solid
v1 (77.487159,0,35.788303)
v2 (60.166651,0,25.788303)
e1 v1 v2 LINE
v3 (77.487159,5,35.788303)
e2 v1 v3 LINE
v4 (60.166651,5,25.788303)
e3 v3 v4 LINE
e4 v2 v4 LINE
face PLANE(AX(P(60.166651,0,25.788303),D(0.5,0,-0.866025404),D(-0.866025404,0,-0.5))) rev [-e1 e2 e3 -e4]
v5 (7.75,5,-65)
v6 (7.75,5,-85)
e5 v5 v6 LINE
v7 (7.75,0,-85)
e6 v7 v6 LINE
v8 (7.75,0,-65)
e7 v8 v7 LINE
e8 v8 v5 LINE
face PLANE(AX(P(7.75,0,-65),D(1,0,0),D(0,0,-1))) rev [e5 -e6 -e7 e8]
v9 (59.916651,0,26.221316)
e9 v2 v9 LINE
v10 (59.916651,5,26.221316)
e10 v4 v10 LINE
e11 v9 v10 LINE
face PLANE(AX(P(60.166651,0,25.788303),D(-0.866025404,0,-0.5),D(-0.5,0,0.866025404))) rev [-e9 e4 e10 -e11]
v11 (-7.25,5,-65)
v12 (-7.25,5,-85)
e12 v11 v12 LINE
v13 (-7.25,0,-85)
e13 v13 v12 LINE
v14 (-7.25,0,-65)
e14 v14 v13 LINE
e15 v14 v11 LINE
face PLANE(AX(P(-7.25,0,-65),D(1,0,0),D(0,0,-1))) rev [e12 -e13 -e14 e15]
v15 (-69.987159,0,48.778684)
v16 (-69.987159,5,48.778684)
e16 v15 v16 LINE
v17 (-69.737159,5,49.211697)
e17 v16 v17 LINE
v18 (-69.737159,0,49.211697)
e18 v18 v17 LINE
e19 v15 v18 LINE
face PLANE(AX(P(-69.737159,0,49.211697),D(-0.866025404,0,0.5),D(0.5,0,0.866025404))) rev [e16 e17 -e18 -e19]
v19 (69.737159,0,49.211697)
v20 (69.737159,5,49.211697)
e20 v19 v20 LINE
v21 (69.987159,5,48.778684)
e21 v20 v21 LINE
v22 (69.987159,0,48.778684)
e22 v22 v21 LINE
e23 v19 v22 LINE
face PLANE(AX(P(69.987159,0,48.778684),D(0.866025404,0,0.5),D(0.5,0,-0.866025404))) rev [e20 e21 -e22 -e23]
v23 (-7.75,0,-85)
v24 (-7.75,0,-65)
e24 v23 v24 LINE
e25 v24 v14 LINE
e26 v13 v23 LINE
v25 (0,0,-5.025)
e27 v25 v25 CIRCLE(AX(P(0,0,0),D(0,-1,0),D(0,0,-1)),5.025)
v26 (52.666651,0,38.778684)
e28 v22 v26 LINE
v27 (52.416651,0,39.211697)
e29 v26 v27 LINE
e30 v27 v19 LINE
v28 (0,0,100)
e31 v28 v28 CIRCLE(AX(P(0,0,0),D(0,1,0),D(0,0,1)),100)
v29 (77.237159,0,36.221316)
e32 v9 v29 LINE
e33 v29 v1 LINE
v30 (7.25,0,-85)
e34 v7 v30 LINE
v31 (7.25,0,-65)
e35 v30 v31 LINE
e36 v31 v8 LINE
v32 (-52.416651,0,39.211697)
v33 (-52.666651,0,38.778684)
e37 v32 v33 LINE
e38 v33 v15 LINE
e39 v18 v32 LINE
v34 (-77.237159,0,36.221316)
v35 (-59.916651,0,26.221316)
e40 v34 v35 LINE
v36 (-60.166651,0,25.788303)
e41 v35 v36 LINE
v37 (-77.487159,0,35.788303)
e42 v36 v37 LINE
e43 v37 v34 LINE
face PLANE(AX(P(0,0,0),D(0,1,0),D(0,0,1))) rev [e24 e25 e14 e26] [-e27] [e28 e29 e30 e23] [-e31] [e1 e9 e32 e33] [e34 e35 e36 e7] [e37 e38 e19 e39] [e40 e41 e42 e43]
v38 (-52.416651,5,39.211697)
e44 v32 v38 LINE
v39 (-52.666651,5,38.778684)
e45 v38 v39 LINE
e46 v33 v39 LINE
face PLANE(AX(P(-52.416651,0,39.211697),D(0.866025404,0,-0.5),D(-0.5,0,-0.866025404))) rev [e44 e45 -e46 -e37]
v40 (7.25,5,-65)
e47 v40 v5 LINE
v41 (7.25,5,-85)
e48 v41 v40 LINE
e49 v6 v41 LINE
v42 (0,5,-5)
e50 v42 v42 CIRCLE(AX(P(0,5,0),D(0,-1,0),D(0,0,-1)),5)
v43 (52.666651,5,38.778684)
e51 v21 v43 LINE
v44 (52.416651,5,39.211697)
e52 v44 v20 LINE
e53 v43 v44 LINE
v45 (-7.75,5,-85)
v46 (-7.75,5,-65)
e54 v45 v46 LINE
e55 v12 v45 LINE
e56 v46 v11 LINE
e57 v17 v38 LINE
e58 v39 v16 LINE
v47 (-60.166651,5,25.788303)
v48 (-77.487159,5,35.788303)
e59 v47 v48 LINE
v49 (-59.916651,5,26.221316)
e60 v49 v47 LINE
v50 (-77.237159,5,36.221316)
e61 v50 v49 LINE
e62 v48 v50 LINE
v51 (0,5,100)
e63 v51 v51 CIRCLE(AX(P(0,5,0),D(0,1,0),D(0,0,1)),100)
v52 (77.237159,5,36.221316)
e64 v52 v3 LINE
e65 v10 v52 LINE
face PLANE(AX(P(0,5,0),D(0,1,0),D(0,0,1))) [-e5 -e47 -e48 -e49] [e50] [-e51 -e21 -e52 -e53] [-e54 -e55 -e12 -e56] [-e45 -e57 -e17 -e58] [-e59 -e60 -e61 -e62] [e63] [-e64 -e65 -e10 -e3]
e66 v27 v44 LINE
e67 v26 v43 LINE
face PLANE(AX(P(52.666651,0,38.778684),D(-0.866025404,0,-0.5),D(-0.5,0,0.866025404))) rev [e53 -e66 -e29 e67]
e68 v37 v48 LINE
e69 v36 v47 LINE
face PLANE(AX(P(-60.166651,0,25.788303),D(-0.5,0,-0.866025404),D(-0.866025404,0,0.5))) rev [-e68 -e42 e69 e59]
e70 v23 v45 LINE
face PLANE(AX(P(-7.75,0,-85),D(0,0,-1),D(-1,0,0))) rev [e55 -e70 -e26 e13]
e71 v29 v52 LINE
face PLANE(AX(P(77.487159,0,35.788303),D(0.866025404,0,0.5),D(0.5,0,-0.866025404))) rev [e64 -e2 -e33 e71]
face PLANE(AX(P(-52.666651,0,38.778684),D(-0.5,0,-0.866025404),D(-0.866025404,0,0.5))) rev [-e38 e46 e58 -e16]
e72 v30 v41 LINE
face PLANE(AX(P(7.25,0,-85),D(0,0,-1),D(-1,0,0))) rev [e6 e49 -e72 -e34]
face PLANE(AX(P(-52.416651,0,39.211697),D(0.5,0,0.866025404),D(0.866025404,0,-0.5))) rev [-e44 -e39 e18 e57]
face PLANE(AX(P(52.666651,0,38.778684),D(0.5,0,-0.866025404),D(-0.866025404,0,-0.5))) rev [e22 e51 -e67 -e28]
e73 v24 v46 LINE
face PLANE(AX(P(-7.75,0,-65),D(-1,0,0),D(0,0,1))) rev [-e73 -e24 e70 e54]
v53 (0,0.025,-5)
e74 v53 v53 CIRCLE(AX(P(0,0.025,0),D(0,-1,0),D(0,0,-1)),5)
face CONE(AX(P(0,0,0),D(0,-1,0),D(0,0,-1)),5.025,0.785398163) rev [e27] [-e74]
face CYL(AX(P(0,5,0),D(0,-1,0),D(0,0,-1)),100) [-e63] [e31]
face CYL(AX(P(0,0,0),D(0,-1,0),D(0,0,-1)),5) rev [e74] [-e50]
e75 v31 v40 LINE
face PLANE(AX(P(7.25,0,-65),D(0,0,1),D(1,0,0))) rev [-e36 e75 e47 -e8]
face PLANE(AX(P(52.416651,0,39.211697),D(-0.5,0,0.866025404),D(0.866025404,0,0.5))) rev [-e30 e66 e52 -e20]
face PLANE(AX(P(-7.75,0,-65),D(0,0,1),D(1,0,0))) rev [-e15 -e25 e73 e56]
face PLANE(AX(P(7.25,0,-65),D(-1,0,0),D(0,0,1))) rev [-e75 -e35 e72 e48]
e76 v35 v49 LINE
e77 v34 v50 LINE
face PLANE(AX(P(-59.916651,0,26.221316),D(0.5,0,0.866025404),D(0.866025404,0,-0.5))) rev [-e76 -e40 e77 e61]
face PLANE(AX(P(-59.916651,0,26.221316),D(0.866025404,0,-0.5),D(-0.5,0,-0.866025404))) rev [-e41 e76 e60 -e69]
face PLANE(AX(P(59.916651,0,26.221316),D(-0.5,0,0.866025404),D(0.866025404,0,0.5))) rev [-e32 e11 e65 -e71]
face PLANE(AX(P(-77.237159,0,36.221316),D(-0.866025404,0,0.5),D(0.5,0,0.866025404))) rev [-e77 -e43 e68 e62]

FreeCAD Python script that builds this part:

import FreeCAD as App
import Part
import Sketcher
from FreeCAD import Vector
Q = App.Units.Quantity

doc = App.newDocument("Part")
body = doc.addObject("PartDesign::Body", "Body")

# Sketch on XZ plane
sketch1 = body.newObject("Sketcher::SketchObject", "Sketch")
sketch1.AttachmentSupport = (doc.getObject("XZ_Plane"), [""])
sketch1.MapMode = "FlatFace"
sketch1.addGeometry(Part.Circle(Vector(0, 0, 0), Vector(0, 0, 1), 100), False)
sketch1.addConstraint(Sketcher.Constraint("Coincident", 0, 3, -1, 1))
sketch1.addConstraint(Sketcher.Constraint("Diameter", 0, Q("200 mm")))
pad1 = body.newObject("PartDesign::Pad", "Pad")
pad1.Profile = sketch1
pad1.Length = 5
pad1.Reversed = True

# Sketch on XZ plane
sketch2 = body.newObject("Sketcher::SketchObject", "Sketch001")
sketch2.AttachmentSupport = (doc.getObject("XZ_Plane"), [""])
sketch2.MapMode = "FlatFace"
sketch2.AttachmentOffset = App.Placement(Vector(0, 0, -5), App.Rotation())
sketch2.addGeometry(Part.LineSegment(Vector(-7.8, -85, 0), Vector(-7.8, -65, 0)), False)
sketch2.addGeometry(Part.LineSegment(Vector(-7.8, -65, 0), Vector(-7.2, -65, 0)), False)
sketch2.addGeometry(Part.LineSegment(Vector(-7.2, -65, 0), Vector(-7.2, -85, 0)), False)
sketch2.addGeometry(Part.LineSegment(Vector(-7.2, -85, 0), Vector(-7.8, -85, 0)), False)
sketch2.addGeometry(Part.LineSegment(Vector(7.2, -85, 0), Vector(7.2, -65, 0)), False)
sketch2.addGeometry(Part.LineSegment(Vector(7.2, -65, 0), Vector(7.8, -65, 0)), False)
sketch2.addGeometry(Part.LineSegment(Vector(7.8, -65, 0), Vector(7.8, -85, 0)), False)
sketch2.addGeometry(Part.LineSegment(Vector(7.8, -85, 0), Vector(7.2, -85, 0)), False)
sketch2.addGeometry(Part.LineSegment(Vector(77.5, 35.8, 0), Vector(60.2, 25.8, 0)), False)
sketch2.addGeometry(Part.LineSegment(Vector(60.2, 25.8, 0), Vector(59.9, 26.2, 0)), False)
sketch2.addGeometry(Part.LineSegment(Vector(59.9, 26.2, 0), Vector(77.2, 36.2, 0)), False)
sketch2.addGeometry(Part.LineSegment(Vector(77.2, 36.2, 0), Vector(77.5, 35.8, 0)), False)
sketch2.addGeometry(Part.LineSegment(Vector(70, 48.8, 0), Vector(52.7, 38.8, 0)), False)
sketch2.addGeometry(Part.LineSegment(Vector(52.7, 38.8, 0), Vector(52.4, 39.2, 0)), False)
sketch2.addGeometry(Part.LineSegment(Vector(52.4, 39.2, 0), Vector(69.7, 49.2, 0)), False)
sketch2.addGeometry(Part.LineSegment(Vector(69.7, 49.2, 0), Vector(70, 48.8, 0)), False)
sketch2.addGeometry(Part.LineSegment(Vector(-69.7, 49.2, 0), Vector(-52.4, 39.2, 0)), False)
sketch2.addGeometry(Part.LineSegment(Vector(-52.4, 39.2, 0), Vector(-52.7, 38.8, 0)), False)
sketch2.addGeometry(Part.LineSegment(Vector(-52.7, 38.8, 0), Vector(-70, 48.8, 0)), False)
sketch2.addGeometry(Part.LineSegment(Vector(-70, 48.8, 0), Vector(-69.7, 49.2, 0)), False)
sketch2.addGeometry(Part.LineSegment(Vector(-77.2, 36.2, 0), Vector(-59.9, 26.2, 0)), False)
sketch2.addGeometry(Part.LineSegment(Vector(-59.9, 26.2, 0), Vector(-60.2, 25.8, 0)), False)
sketch2.addGeometry(Part.LineSegment(Vector(-60.2, 25.8, 0), Vector(-77.5, 35.8, 0)), False)
sketch2.addGeometry(Part.LineSegment(Vector(-77.5, 35.8, 0), Vector(-77.2, 36.2, 0)), False)
sketch2.addConstraint(Sketcher.Constraint("Coincident", 0, 2, 1, 1))
sketch2.addConstraint(Sketcher.Constraint("Coincident", 1, 2, 2, 1))
sketch2.addConstraint(Sketcher.Constraint("Coincident", 2, 2, 3, 1))
sketch2.addConstraint(Sketcher.Constraint("Coincident", 3, 2, 0, 1))
sketch2.addConstraint(Sketcher.Constraint("Coincident", 4, 2, 5, 1))
sketch2.addConstraint(Sketcher.Constraint("Coincident", 5, 2, 6, 1))
sketch2.addConstraint(Sketcher.Constraint("Coincident", 6, 2, 7, 1))
sketch2.addConstraint(Sketcher.Constraint("Coincident", 7, 2, 4, 1))
sketch2.addConstraint(Sketcher.Constraint("Coincident", 8, 2, 9, 1))
sketch2.addConstraint(Sketcher.Constraint("Coincident", 9, 2, 10, 1))
sketch2.addConstraint(Sketcher.Constraint("Coincident", 10, 2, 11, 1))
sketch2.addConstraint(Sketcher.Constraint("Coincident", 11, 2, 8, 1))
sketch2.addConstraint(Sketcher.Constraint("Coincident", 12, 2, 13, 1))
sketch2.addConstraint(Sketcher.Constraint("Coincident", 13, 2, 14, 1))
sketch2.addConstraint(Sketcher.Constraint("Coincident", 14, 2, 15, 1))
sketch2.addConstraint(Sketcher.Constraint("Coincident", 15, 2, 12, 1))
sketch2.addConstraint(Sketcher.Constraint("Coincident", 16, 2, 17, 1))
sketch2.addConstraint(Sketcher.Constraint("Coincident", 17, 2, 18, 1))
sketch2.addConstraint(Sketcher.Constraint("Coincident", 18, 2, 19, 1))
sketch2.addConstraint(Sketcher.Constraint("Coincident", 19, 2, 16, 1))
sketch2.addConstraint(Sketcher.Constraint("Coincident", 20, 2, 21, 1))
sketch2.addConstraint(Sketcher.Constraint("Coincident", 21, 2, 22, 1))
sketch2.addConstraint(Sketcher.Constraint("Coincident", 22, 2, 23, 1))
sketch2.addConstraint(Sketcher.Constraint("Coincident", 23, 2, 20, 1))
sketch2.addConstraint(Sketcher.Constraint("Vertical", 0))
sketch2.addConstraint(Sketcher.Constraint("Horizontal", 1))
sketch2.addConstraint(Sketcher.Constraint("Vertical", 2))
sketch2.addConstraint(Sketcher.Constraint("Horizontal", 3))
sketch2.addConstraint(Sketcher.Constraint("Vertical", 4))
sketch2.addConstraint(Sketcher.Constraint("Horizontal", 5))
sketch2.addConstraint(Sketcher.Constraint("Vertical", 6))
sketch2.addConstraint(Sketcher.Constraint("Horizontal", 7))
sketch2.addConstraint(Sketcher.Constraint("Symmetric", 1, 2, 4, 2, -2))
sketch2.addConstraint(Sketcher.Constraint("Symmetric", 3, 2, 6, 2, -2))
sketch2.addConstraint(Sketcher.Constraint("Symmetric", 13, 2, 16, 2, -2))
sketch2.addConstraint(Sketcher.Constraint("Symmetric", 12, 2, 17, 2, -2))
sketch2.addConstraint(Sketcher.Constraint("Symmetric", 15, 2, 18, 2, -2))
sketch2.addConstraint(Sketcher.Constraint("Symmetric", 14, 2, 19, 2, -2))
sketch2.addConstraint(Sketcher.Constraint("Symmetric", 9, 2, 20, 2, -2))
sketch2.addConstraint(Sketcher.Constraint("Symmetric", 8, 2, 21, 2, -2))
sketch2.addConstraint(Sketcher.Constraint("Symmetric", 11, 2, 22, 2, -2))
sketch2.addConstraint(Sketcher.Constraint("Symmetric", 10, 2, 23, 2, -2))
sketch2.addConstraint(Sketcher.Constraint("Perpendicular", 8, 9))
sketch2.addConstraint(Sketcher.Constraint("Perpendicular", 9, 10))
sketch2.addConstraint(Sketcher.Constraint("Perpendicular", 10, 11))
sketch2.addConstraint(Sketcher.Constraint("Perpendicular", 11, 12))
sketch2.addConstraint(Sketcher.Constraint("Perpendicular", 12, 13))
sketch2.addConstraint(Sketcher.Constraint("Perpendicular", 13, 14))
sketch2.addConstraint(Sketcher.Constraint("Perpendicular", 14, 15))
sketch2.addConstraint(Sketcher.Constraint("Equal", 10, 12))
sketch2.addConstraint(Sketcher.Constraint("Equal", 11, 13))
sketch2.addConstraint(Sketcher.Constraint("DistanceY", 0, 1, 0, 2, Q("20 mm")))
sketch2.addConstraint(Sketcher.Constraint("Angle", 8, Q("-150 deg")))
sketch2.addConstraint(Sketcher.Constraint("Distance", 8, Q("20 mm")))
sketch2.addConstraint(Sketcher.Constraint("DistanceX", 1, 1, 1, 2, Q("0.5 mm")))
sketch2.addConstraint(Sketcher.Constraint("DistanceY", 0, 2, -1, 1, Q("65 mm")))
sketch2.addConstraint(Sketcher.Constraint("DistanceX", 0, 2, 4, 2, Q("15 mm")))
sketch2.addConstraint(Sketcher.Constraint("Distance", 9, Q("0.5 mm")))
sketch2.addConstraint(Sketcher.Constraint("DistanceX", 12, 2, 8, 2, Q("7.5 mm")))
sketch2.addConstraint(Sketcher.Constraint("DistanceX", -1, 1, 8, 2, Q("60.166651 mm")))
sketch2.addConstraint(Sketcher.Constraint("DistanceY", 9, 2, 12, 2, Q("12.557368 mm")))
sketch2.addConstraint(Sketcher.Constraint("DistanceY", -1, 1, 8, 2, Q("25.788303 mm")))
pocket1 = body.newObject("PartDesign::Pocket", "Pocket")
pocket1.Profile = sketch2
pocket1.Type = "ThroughAll"
pocket1.Reversed = True

# Sketch on YZ plane
sketch3 = body.newObject("Sketcher::SketchObject", "Sketch002")
sketch3.AttachmentSupport = (doc.getObject("YZ_Plane"), [""])
sketch3.MapMode = "FlatFace"
sketch3.addGeometry(Part.LineSegment(Vector(5, 0, 0), Vector(0, 0, 0)), False)
sketch3.addGeometry(Part.LineSegment(Vector(0, 0, 0), Vector(0, -5.025, 0)), False)
sketch3.addGeometry(Part.LineSegment(Vector(0, -5.025, 0), Vector(0.025, -5, 0)), False)
sketch3.addGeometry(Part.LineSegment(Vector(0.025, -5, 0), Vector(5, -5, 0)), False)
sketch3.addGeometry(Part.LineSegment(Vector(5, -5, 0), Vector(5, 0, 0)), False)
sketch3.addConstraint(Sketcher.Constraint("Coincident", 0, 2, 1, 1))
sketch3.addConstraint(Sketcher.Constraint("Coincident", 1, 2, 2, 1))
sketch3.addConstraint(Sketcher.Constraint("Coincident", 2, 2, 3, 1))
sketch3.addConstraint(Sketcher.Constraint("Coincident", 3, 2, 4, 1))
sketch3.addConstraint(Sketcher.Constraint("Coincident", 4, 2, 0, 1))
sketch3.addConstraint(Sketcher.Constraint("Horizontal", 0))
sketch3.addConstraint(Sketcher.Constraint("Vertical", 1))
sketch3.addConstraint(Sketcher.Constraint("Horizontal", 3))
sketch3.addConstraint(Sketcher.Constraint("Vertical", 4))
sketch3.addConstraint(Sketcher.Constraint("Coincident", 0, 2, -1, 1))
sketch3.addConstraint(Sketcher.Constraint("Equal", 0, 4))
sketch3.addConstraint(Sketcher.Constraint("DistanceX", 0, 2, 0, 1, Q("5 mm")))
sketch3.addConstraint(Sketcher.Constraint("Angle", 2, Q("45 deg")))
sketch3.addConstraint(Sketcher.Constraint("DistanceX", 3, 1, 3, 2, Q("4.975 mm")))
groove = body.newObject("PartDesign::Groove", "Groove")
groove.Profile = sketch3
groove.ReferenceAxis = (sketch3, ["H_Axis"])
groove.Angle = 360

doc.recompute()
